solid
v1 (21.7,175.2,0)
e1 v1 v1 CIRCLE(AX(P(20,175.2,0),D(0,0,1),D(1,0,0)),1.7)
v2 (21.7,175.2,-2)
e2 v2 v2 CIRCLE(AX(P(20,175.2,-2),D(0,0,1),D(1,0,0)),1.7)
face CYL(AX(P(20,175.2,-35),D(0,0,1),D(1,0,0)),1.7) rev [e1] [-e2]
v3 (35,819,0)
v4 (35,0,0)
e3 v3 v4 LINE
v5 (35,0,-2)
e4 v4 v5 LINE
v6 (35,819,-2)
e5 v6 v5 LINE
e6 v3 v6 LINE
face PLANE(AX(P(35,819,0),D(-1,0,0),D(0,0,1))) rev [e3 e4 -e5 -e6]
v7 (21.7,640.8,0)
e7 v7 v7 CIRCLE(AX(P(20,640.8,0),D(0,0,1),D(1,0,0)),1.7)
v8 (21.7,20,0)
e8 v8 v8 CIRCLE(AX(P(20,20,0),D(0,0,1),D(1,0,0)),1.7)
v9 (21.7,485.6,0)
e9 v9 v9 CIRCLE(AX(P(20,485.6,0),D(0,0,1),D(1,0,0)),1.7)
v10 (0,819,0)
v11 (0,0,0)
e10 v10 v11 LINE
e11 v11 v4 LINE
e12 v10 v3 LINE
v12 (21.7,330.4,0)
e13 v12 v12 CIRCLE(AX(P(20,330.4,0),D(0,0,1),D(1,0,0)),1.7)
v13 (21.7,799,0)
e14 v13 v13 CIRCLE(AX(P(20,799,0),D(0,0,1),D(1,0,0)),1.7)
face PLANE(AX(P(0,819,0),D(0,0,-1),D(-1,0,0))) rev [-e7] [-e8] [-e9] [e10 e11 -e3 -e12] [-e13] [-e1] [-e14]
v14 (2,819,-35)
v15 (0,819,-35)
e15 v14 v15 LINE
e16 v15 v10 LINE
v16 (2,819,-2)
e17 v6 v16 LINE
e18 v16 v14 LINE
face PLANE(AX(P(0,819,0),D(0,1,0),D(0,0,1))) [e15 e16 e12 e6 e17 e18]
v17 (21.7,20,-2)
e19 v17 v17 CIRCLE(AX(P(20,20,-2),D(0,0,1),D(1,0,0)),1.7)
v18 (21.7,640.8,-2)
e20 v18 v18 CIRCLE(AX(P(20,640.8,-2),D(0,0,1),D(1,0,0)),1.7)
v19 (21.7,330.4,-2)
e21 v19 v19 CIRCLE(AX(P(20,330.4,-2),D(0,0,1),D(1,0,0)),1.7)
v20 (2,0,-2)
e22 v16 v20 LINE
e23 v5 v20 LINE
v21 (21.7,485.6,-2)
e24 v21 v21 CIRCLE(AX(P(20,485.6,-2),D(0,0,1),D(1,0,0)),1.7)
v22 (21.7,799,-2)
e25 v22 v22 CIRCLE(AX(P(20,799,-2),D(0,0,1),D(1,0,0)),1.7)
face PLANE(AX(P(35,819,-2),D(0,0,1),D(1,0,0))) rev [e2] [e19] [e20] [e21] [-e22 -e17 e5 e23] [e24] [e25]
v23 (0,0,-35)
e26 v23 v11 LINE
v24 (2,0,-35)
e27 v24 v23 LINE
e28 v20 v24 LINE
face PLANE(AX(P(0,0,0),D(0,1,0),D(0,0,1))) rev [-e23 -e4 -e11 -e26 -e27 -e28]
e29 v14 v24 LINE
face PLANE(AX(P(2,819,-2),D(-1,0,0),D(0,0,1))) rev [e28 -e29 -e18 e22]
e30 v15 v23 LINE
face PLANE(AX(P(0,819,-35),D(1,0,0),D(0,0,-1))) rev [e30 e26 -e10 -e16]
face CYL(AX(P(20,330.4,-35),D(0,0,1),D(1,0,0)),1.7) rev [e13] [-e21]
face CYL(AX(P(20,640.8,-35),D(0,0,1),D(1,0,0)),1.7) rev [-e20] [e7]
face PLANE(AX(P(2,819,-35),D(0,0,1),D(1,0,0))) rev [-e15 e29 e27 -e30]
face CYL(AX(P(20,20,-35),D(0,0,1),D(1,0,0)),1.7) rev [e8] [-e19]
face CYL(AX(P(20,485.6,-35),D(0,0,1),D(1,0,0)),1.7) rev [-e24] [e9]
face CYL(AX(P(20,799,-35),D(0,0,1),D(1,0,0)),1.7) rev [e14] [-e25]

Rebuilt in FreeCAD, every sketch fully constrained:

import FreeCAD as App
import Part
import Sketcher

V = App.Vector
Q = App.Units.Quantity

doc = App.newDocument("Part")
body = doc.addObject("PartDesign::Body", "Body")

# Sketch on XZ plane
sketch1 = doc.addObject("Sketcher::SketchObject", "Sketch")
body.addObject(sketch1)
sketch1.AttachmentSupport = (doc.XZ_Plane, [""])
sketch1.MapMode = "FlatFace"
sketch1.addGeometry(Part.LineSegment(V(0, 0, 0), V(35, 0, 0)), False)
sketch1.addGeometry(Part.LineSegment(V(35, 0, 0), V(35, -2, 0)), False)
sketch1.addGeometry(Part.LineSegment(V(35, -2, 0), V(2, -2, 0)), False)
sketch1.addGeometry(Part.LineSegment(V(2, -2, 0), V(2, -35, 0)), False)
sketch1.addGeometry(Part.LineSegment(V(2, -35, 0), V(0, -35, 0)), False)
sketch1.addGeometry(Part.LineSegment(V(0, -35, 0), V(0, 0, 0)), False)
sketch1.addConstraint(Sketcher.Constraint("Coincident", 0, 2, 1, 1))
sketch1.addConstraint(Sketcher.Constraint("Coincident", 1, 2, 2, 1))
sketch1.addConstraint(Sketcher.Constraint("Coincident", 2, 2, 3, 1))
sketch1.addConstraint(Sketcher.Constraint("Coincident", 3, 2, 4, 1))
sketch1.addConstraint(Sketcher.Constraint("Coincident", 4, 2, 5, 1))
sketch1.addConstraint(Sketcher.Constraint("Coincident", 5, 2, 0, 1))
sketch1.addConstraint(Sketcher.Constraint("Horizontal", 0))
sketch1.addConstraint(Sketcher.Constraint("Vertical", 1))
sketch1.addConstraint(Sketcher.Constraint("Horizontal", 2))
sketch1.addConstraint(Sketcher.Constraint("Vertical", 3))
sketch1.addConstraint(Sketcher.Constraint("Horizontal", 4))
sketch1.addConstraint(Sketcher.Constraint("Vertical", 5))
sketch1.addConstraint(Sketcher.Constraint("Coincident", 5, 2, -1, 1))
sketch1.addConstraint(Sketcher.Constraint("Equal", 4, 1))
sketch1.addConstraint(Sketcher.Constraint("Equal", 2, 3))
sketch1.addConstraint(Sketcher.Constraint("DistanceX", 0, 1, 0, 2, Q("35 mm")))
sketch1.addConstraint(Sketcher.Constraint("DistanceX", 2, 2, 2, 1, Q("33 mm")))
pad1 = doc.addObject("PartDesign::Pad", "Pad")
body.addObject(pad1)
pad1.Profile = sketch1
pad1.Length = 819
pad1.Reversed = True

# Sketch on XY plane
sketch2 = doc.addObject("Sketcher::SketchObject", "Sketch001")
body.addObject(sketch2)
sketch2.AttachmentSupport = (doc.XY_Plane, [""])
sketch2.MapMode = "FlatFace"
sketch2.addGeometry(Part.Circle(V(20, 20, 0), V(0, 0, 1), 1.7), False)
sketch2.addGeometry(Part.Circle(V(20, 330.4, 0), V(0, 0, 1), 1.7), False)
sketch2.addGeometry(Part.Circle(V(20, 485.6, 0), V(0, 0, 1), 1.7), False)
sketch2.addGeometry(Part.Circle(V(20, 175.2, 0), V(0, 0, 1), 1.7), False)
sketch2.addGeometry(Part.Circle(V(20, 640.8, 0), V(0, 0, 1), 1.7), False)
sketch2.addGeometry(Part.Circle(V(20, 799, 0), V(0, 0, 1), 1.7), False)
sketch2.addConstraint(Sketcher.Constraint("Equal", 0, 1))
sketch2.addConstraint(Sketcher.Constraint("Equal", 1, 2))
sketch2.addConstraint(Sketcher.Constraint("Equal", 2, 3))
sketch2.addConstraint(Sketcher.Constraint("Equal", 3, 4))
sketch2.addConstraint(Sketcher.Constraint("Equal", 4, 5))
sketch2.addConstraint(Sketcher.Constraint("Vertical", 0, 3, 1, 3))
sketch2.addConstraint(Sketcher.Constraint("Vertical", 1, 3, 2, 3))
sketch2.addConstraint(Sketcher.Constraint("Vertical", 2, 3, 3, 3))
sketch2.addConstraint(Sketcher.Constraint("Vertical", 3, 3, 4, 3))
sketch2.addConstraint(Sketcher.Constraint("Vertical", 4, 3, 5, 3))
sketch2.addConstraint(Sketcher.Constraint("Diameter", 0, Q("3.4 mm")))
sketch2.addConstraint(Sketcher.Constraint("DistanceX", -1, 1, 0, 3, Q("20 mm")))
sketch2.addConstraint(Sketcher.Constraint("DistanceY", -1, 1, 0, 3, Q("20 mm")))
sketch2.addConstraint(Sketcher.Constraint("DistanceY", -1, 1, 5, 3, Q("799 mm")))
sketch2.addConstraint(Sketcher.Constraint("DistanceY", -1, 1, 1, 3, Q("330.4 mm")))
sketch2.addConstraint(Sketcher.Constraint("DistanceY", -1, 1, 2, 3, Q("485.6 mm")))
sketch2.addConstraint(Sketcher.Constraint("DistanceY", -1, 1, 3, 3, Q("175.2 mm")))
sketch2.addConstraint(Sketcher.Constraint("DistanceY", -1, 1, 4, 3, Q("640.8 mm")))
pocket1 = doc.addObject("PartDesign::Pocket", "Pocket")
body.addObject(pocket1)
pocket1.Profile = sketch2
pocket1.Type = "ThroughAll"

doc.recompute()
